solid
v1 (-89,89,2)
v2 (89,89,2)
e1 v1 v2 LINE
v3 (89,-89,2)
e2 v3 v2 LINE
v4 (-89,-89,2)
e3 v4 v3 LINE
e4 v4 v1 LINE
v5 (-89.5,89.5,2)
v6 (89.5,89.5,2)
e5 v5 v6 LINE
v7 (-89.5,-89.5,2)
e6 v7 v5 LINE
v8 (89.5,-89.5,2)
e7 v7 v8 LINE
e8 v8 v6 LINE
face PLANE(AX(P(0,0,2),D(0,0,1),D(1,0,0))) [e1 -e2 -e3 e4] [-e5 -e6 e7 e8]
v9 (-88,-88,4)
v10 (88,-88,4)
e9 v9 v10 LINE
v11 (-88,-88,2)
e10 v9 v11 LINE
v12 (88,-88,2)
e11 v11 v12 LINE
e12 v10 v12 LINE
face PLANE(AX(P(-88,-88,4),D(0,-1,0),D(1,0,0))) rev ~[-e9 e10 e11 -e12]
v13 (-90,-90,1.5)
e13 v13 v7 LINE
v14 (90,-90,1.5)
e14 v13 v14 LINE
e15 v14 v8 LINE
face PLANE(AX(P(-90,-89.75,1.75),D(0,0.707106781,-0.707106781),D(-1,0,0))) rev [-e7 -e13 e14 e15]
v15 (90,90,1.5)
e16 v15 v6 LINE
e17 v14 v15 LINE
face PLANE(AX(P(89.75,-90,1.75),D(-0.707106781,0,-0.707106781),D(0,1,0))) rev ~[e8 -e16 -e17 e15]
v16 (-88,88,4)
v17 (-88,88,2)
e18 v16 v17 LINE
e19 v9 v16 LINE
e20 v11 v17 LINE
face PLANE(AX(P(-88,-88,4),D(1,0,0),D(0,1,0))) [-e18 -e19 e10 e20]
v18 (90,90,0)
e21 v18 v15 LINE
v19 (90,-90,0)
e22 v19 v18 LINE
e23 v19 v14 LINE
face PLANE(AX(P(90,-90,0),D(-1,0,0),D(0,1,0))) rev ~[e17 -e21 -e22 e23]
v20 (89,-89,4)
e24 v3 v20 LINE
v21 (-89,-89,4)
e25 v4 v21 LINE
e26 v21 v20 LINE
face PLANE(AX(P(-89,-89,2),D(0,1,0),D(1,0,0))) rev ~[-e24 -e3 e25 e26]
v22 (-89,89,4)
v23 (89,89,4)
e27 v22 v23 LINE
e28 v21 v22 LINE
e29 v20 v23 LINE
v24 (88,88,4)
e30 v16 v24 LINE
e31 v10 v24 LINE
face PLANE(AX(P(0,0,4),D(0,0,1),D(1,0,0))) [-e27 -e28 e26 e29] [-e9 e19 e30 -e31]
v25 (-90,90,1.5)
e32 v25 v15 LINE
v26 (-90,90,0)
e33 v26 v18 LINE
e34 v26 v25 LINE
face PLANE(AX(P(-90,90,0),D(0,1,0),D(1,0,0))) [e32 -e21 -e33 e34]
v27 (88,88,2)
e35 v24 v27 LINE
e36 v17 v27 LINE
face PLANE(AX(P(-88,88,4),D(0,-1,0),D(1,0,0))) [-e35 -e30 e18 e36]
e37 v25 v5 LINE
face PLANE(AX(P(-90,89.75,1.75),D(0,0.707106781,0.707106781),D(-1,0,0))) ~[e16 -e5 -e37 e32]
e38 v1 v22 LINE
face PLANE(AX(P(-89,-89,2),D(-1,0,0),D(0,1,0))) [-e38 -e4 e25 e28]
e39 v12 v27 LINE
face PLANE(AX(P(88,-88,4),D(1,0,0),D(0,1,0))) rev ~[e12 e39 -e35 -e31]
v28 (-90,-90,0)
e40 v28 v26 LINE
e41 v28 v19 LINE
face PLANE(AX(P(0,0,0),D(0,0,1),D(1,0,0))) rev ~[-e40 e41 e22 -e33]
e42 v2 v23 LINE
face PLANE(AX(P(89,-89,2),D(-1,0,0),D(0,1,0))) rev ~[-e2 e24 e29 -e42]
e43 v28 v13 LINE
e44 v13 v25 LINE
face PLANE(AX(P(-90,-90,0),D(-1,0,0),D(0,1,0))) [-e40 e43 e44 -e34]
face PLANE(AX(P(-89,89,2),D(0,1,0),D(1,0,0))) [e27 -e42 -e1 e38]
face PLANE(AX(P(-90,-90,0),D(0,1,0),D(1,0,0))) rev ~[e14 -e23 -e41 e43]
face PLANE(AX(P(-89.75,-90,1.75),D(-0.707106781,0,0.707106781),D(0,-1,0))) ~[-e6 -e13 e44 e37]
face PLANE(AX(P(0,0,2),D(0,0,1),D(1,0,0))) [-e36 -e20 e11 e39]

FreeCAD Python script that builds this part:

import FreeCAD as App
import Part
import Sketcher

V = App.Vector
Q = App.Units.Quantity


def edges_at(feature, points):
    """Names of the edges that pass closest to the given points."""
    edges = feature.Shape.Edges
    near = lambda p: min(range(len(edges)), key=lambda i: edges[i].distToShape(Part.Vertex(*p))[0])
    return sorted({f"Edge{near(p) + 1}" for p in points})


def add_polygon(sketch, points):
    """Adds a closed chain of lines whose ends are joined by coincident constraints."""
    first, n = sketch.GeometryCount, len(points)
    for a, b in zip(points, points[1:] + points[:1]):
        sketch.addGeometry(Part.LineSegment(App.Vector(*a, 0), App.Vector(*b, 0)), False)
    for i in range(n):
        sketch.addConstraint(Sketcher.Constraint("Coincident", first + i, 2, first + (i + 1) % n, 1))

doc = App.newDocument("Part")
body = doc.addObject("PartDesign::Body", "Body")

# Sketch on XY plane
sketch1 = doc.addObject("Sketcher::SketchObject", "Sketch")
body.addObject(sketch1)
sketch1.AttachmentSupport = (doc.XY_Plane, [""])
sketch1.MapMode = "FlatFace"
add_polygon(sketch1, [(-90, 90), (-90, -90), (90, -90), (90, 90)])  # lines 0-3
sketch1.addConstraint([
    Sketcher.Constraint("Vertical", 0),
    Sketcher.Constraint("Horizontal", 1),
    Sketcher.Constraint("Vertical", 2),
    Sketcher.Constraint("Horizontal", 3),
    Sketcher.Constraint("Symmetric", 0, 2, 2, 2, -1, 1),
    Sketcher.Constraint("Equal", 3, 0),
    Sketcher.Constraint("DistanceX", 1, 1, 1, 2, Q("180 mm")),
])
pad1 = doc.addObject("PartDesign::Pad", "Pad")
body.addObject(pad1)
pad1.Profile = sketch1
pad1.Length = 2

# Sketch on XY plane
sketch2 = doc.addObject("Sketcher::SketchObject", "Sketch001")
body.addObject(sketch2)
sketch2.AttachmentSupport = (doc.XY_Plane, [""])
sketch2.MapMode = "FlatFace"
sketch2.AttachmentOffset = App.Placement(V(0, 0, 2), App.Rotation())
add_polygon(sketch2, [(-89, 89), (-89, -89), (89, -89), (89, 89)])  # lines 0-3
sketch2.addConstraint([
    Sketcher.Constraint("Vertical", 0),
    Sketcher.Constraint("Horizontal", 1),
    Sketcher.Constraint("Vertical", 2),
    Sketcher.Constraint("Horizontal", 3),
    Sketcher.Constraint("Symmetric", 0, 2, 2, 2, -1, 1),
    Sketcher.Constraint("Equal", 3, 0),
    Sketcher.Constraint("DistanceX", 1, 1, 1, 2, Q("178 mm")),
])
pad2 = doc.addObject("PartDesign::Pad", "Pad001")
body.addObject(pad2)
pad2.Profile = sketch2
pad2.Length = 2

# Sketch on XY plane
sketch3 = doc.addObject("Sketcher::SketchObject", "Sketch002")
body.addObject(sketch3)
sketch3.AttachmentSupport = (doc.XY_Plane, [""])
sketch3.MapMode = "FlatFace"
sketch3.AttachmentOffset = App.Placement(V(0, 0, 4), App.Rotation())
add_polygon(sketch3, [(-88, 88), (-88, -88), (88, -88), (88, 88)])  # lines 0-3
sketch3.addConstraint([
    Sketcher.Constraint("Vertical", 0),
    Sketcher.Constraint("Horizontal", 1),
    Sketcher.Constraint("Vertical", 2),
    Sketcher.Constraint("Horizontal", 3),
    Sketcher.Constraint("Symmetric", 0, 2, 2, 2, -1, 1),
    Sketcher.Constraint("Equal", 3, 0),
    Sketcher.Constraint("DistanceX", 1, 1, 1, 2, Q("176 mm")),
])
pocket1 = doc.addObject("PartDesign::Pocket", "Pocket")
body.addObject(pocket1)
pocket1.Profile = sketch3
pocket1.Length = 2
doc.recompute()

chamfer = doc.addObject("PartDesign::Chamfer", "Chamfer")
body.addObject(chamfer)
chamfer.Base = (pocket1, edges_at(pocket1, [
    (0, -90, 2),
    (0, 90, 2),
    (90, 0, 2),
    (-90, 0, 2),
]))
chamfer.Size = 0.5

doc.recompute()
